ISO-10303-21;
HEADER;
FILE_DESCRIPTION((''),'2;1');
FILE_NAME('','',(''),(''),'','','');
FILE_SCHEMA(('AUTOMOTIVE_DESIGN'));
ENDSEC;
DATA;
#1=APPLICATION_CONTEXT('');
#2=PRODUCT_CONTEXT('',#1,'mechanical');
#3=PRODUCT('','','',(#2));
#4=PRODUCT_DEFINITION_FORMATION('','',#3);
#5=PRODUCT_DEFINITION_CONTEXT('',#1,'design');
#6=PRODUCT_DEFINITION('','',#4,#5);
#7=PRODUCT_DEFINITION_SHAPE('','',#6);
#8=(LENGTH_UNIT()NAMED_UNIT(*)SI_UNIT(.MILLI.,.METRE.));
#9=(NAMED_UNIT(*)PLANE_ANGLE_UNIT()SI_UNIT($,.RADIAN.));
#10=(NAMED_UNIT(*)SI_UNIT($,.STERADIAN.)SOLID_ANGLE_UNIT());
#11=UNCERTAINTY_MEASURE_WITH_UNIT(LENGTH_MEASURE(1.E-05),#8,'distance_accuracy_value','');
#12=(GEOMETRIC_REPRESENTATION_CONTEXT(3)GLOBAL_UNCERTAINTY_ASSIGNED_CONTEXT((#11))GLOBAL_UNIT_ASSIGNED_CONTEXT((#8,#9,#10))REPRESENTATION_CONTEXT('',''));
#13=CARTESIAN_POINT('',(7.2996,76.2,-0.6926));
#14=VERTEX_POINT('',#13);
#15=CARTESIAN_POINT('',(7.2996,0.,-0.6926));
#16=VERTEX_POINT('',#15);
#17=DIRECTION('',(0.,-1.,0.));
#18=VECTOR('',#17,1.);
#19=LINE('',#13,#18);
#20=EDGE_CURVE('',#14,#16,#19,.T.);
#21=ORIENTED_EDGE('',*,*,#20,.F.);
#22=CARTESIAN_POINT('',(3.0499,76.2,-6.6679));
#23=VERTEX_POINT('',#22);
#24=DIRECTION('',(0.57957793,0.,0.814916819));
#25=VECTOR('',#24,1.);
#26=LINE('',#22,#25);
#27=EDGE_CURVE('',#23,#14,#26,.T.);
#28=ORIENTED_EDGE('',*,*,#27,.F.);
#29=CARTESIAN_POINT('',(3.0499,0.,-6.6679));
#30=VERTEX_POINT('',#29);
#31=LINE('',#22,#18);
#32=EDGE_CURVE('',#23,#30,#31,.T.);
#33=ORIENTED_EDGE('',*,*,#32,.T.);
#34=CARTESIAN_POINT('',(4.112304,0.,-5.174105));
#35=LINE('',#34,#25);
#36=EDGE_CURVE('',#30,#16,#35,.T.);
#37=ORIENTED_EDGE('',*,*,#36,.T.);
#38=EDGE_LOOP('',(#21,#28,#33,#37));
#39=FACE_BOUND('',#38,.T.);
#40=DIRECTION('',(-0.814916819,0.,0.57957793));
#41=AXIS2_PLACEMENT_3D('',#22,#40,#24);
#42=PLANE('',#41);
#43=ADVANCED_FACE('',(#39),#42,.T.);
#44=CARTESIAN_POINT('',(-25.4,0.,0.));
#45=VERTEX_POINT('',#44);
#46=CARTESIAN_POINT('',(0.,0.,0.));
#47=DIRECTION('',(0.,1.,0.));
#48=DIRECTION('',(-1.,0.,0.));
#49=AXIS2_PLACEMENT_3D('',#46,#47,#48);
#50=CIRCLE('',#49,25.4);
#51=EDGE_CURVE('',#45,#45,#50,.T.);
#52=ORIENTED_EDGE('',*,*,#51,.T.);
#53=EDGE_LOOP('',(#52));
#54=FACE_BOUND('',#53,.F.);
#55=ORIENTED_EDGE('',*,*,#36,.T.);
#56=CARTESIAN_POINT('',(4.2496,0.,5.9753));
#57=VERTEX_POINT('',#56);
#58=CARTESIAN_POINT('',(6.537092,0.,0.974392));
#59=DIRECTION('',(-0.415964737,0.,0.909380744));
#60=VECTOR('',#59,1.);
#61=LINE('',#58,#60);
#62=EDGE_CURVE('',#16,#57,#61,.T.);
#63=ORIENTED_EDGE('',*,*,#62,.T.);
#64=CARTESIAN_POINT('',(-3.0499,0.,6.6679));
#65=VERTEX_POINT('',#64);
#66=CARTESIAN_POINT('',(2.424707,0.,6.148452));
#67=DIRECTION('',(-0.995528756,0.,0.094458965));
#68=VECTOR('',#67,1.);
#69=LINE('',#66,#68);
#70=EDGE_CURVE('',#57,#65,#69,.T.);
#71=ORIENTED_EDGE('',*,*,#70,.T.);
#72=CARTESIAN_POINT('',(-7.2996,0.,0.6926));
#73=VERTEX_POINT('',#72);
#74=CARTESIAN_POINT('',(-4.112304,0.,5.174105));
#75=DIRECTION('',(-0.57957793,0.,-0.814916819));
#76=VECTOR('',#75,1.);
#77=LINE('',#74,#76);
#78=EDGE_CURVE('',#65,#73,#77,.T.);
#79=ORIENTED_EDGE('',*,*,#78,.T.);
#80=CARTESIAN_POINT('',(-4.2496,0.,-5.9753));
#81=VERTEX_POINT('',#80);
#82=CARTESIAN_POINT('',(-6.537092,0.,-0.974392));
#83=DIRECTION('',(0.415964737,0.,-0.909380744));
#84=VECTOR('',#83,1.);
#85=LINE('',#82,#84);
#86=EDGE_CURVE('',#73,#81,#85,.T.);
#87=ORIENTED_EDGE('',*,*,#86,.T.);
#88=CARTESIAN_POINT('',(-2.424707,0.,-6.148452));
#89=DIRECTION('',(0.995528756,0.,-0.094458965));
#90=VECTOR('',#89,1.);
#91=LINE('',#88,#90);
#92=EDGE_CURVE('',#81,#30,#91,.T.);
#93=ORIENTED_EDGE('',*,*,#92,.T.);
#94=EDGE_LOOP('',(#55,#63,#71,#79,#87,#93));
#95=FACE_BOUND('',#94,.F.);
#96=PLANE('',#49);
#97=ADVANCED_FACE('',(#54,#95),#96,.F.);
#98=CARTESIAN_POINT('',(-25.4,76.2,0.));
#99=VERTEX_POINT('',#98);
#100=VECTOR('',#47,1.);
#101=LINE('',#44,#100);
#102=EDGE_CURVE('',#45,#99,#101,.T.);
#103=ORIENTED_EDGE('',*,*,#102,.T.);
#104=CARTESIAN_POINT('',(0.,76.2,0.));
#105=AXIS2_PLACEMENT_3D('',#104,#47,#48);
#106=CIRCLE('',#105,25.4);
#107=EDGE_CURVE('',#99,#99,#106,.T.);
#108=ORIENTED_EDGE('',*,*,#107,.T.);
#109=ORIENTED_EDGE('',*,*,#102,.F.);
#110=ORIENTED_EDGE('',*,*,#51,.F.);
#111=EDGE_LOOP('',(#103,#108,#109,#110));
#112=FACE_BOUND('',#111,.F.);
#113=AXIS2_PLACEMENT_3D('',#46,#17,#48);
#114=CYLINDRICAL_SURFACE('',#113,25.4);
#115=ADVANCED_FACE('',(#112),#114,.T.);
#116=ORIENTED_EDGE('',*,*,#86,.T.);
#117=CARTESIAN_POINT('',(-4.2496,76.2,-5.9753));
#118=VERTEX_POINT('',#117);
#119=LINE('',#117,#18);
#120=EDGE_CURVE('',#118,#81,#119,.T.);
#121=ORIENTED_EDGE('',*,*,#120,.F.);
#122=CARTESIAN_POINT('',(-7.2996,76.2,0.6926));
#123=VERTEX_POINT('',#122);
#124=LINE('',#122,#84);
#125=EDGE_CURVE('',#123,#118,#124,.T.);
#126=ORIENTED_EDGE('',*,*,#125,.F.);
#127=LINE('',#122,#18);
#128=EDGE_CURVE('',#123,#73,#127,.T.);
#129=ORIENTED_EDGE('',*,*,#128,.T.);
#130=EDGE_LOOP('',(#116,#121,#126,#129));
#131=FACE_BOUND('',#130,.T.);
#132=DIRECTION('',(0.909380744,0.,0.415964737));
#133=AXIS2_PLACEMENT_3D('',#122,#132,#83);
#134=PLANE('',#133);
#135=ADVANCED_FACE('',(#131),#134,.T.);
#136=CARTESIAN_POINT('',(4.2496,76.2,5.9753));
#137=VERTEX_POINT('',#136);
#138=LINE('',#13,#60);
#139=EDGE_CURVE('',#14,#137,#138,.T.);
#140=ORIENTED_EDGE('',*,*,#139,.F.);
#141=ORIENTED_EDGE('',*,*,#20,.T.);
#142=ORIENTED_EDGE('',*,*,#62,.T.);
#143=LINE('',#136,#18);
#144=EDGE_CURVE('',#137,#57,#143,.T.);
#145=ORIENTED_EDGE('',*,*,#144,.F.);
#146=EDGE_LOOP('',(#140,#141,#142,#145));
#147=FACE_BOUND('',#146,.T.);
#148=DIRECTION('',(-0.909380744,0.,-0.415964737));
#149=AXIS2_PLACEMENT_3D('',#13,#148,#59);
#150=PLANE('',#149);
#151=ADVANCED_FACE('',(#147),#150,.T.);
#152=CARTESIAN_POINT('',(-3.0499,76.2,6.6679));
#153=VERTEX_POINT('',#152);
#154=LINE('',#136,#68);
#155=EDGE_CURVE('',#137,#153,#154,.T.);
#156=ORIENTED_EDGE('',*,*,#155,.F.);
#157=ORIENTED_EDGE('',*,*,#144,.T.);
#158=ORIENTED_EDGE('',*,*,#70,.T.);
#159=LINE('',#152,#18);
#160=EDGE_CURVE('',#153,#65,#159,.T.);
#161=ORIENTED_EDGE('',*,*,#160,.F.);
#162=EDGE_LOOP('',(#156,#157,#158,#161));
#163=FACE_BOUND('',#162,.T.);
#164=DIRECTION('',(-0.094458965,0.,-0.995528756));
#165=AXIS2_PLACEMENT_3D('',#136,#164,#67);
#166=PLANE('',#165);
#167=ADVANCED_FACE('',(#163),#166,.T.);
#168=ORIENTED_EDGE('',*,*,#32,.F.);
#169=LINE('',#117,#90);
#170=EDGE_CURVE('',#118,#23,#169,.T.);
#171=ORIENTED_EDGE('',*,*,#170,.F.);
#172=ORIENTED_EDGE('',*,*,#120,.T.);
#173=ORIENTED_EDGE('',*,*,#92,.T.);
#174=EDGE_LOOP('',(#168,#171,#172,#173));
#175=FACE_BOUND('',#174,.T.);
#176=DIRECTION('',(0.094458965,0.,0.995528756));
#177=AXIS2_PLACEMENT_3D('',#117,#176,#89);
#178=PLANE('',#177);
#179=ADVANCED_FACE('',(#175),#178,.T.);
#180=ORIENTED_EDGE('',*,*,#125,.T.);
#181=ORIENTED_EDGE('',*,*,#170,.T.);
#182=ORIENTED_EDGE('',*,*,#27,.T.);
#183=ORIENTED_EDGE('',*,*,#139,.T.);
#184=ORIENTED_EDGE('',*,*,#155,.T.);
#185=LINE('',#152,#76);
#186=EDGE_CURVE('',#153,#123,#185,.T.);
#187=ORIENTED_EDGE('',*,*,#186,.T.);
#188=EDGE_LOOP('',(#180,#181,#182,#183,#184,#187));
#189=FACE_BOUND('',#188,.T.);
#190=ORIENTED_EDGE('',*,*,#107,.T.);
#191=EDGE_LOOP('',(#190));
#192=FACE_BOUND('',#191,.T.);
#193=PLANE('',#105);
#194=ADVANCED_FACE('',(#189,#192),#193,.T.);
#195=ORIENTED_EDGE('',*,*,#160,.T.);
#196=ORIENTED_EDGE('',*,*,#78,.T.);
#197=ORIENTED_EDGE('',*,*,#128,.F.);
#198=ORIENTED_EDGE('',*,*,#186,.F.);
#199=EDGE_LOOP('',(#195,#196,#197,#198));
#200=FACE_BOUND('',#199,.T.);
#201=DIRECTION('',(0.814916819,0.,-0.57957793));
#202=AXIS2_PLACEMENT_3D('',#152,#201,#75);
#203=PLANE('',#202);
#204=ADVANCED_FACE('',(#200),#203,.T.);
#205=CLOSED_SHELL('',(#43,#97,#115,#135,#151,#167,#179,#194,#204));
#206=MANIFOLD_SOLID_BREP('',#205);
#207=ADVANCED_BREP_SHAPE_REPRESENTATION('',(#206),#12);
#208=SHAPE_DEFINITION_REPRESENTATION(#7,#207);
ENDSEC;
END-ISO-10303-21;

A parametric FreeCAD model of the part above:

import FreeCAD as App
import Part
import Sketcher
from FreeCAD import Vector
Q = App.Units.Quantity

doc = App.newDocument("Part")
params = doc.addObject("Spreadsheet::Sheet", "Params")
for row, (alias, value) in enumerate([
    ("sketch1_diameter", "2 in"),
    ("pad1_length", "3 in"),
], start=1):
    params.set(f"A{row}", alias)
    params.set(f"B{row}", "=" + value)
    params.setAlias(f"B{row}", alias)

body = doc.addObject("PartDesign::Body", "Body")

sketch1 = body.newObject("Sketcher::SketchObject", "Sketch")
sketch1.AttachmentSupport = (doc.getObject("XZ_Plane"), [""])
sketch1.MapMode = "FlatFace"
sketch1.addGeometry(Part.Circle(Vector(0, 0, 0), Vector(0, 0, 1), 25.4), False)
sketch1.addConstraint([
    Sketcher.Constraint("Coincident", 0, 3, -1, 1),
    Sketcher.Constraint("Diameter", 0, Q("2 in")),
])
sketch1.setExpression("Constraints[1]", "Params.sketch1_diameter")
pad1 = body.newObject("PartDesign::Pad", "Pad")
pad1.Profile = sketch1
pad1.setExpression("Length", "Params.pad1_length")
pad1.Reversed = True

sketch2 = body.newObject("Sketcher::SketchObject", "Sketch001")
sketch2.AttachmentSupport = (doc.getObject("XZ_Plane"), [""])
sketch2.MapMode = "FlatFace"
sketch2.AttachmentOffset = App.Placement(Vector(0, 0, -3 * 25.4), App.Rotation())
sketch2.addGeometry([
    Part.LineSegment(Vector(-3.0499, 6.6679, 0), Vector(4.2496, 5.9753, 0)),
    Part.LineSegment(Vector(4.2496, 5.9753, 0), Vector(7.2996, -0.6926, 0)),
    Part.LineSegment(Vector(7.2996, -0.6926, 0), Vector(3.0499, -6.6679, 0)),
    Part.LineSegment(Vector(3.0499, -6.6679, 0), Vector(-4.2496, -5.9753, 0)),
    Part.LineSegment(Vector(-4.2496, -5.9753, 0), Vector(-7.2996, 0.6926, 0)),
    Part.LineSegment(Vector(-7.2996, 0.6926, 0), Vector(-3.0499, 6.6679, 0)),
], False)
sketch2.addConstraint([
    Sketcher.Constraint("Coincident", 0, 2, 1, 1),
    Sketcher.Constraint("Coincident", 1, 2, 2, 1),
    Sketcher.Constraint("Coincident", 2, 2, 3, 1),
    Sketcher.Constraint("Coincident", 3, 2, 4, 1),
    Sketcher.Constraint("Coincident", 4, 2, 5, 1),
    Sketcher.Constraint("Coincident", 5, 2, 0, 1),
    Sketcher.Constraint("Symmetric", 0, 2, 3, 2, -1, 1),
    Sketcher.Constraint("Symmetric", 1, 2, 4, 2, -1, 1),
    Sketcher.Constraint("Symmetric", 2, 2, 5, 2, -1, 1),
    Sketcher.Constraint("Equal", 0, 1),
    Sketcher.Constraint("Equal", 1, 2),
    Sketcher.Constraint("Angle", 0, Q("-5.4202 deg")),
    Sketcher.Constraint("Angle", 1, Q("-65.42 deg")),
    Sketcher.Constraint("Angle", 2, Q("-125.4209 deg")),
    Sketcher.Constraint("DistanceX", -1, 1, 0, 2, Q("0.1673 in")),
])
pocket1 = body.newObject("PartDesign::Pocket", "Pocket")
pocket1.Profile = sketch2
pocket1.Type = "ThroughAll"
pocket1.Reversed = True

doc.recompute()
